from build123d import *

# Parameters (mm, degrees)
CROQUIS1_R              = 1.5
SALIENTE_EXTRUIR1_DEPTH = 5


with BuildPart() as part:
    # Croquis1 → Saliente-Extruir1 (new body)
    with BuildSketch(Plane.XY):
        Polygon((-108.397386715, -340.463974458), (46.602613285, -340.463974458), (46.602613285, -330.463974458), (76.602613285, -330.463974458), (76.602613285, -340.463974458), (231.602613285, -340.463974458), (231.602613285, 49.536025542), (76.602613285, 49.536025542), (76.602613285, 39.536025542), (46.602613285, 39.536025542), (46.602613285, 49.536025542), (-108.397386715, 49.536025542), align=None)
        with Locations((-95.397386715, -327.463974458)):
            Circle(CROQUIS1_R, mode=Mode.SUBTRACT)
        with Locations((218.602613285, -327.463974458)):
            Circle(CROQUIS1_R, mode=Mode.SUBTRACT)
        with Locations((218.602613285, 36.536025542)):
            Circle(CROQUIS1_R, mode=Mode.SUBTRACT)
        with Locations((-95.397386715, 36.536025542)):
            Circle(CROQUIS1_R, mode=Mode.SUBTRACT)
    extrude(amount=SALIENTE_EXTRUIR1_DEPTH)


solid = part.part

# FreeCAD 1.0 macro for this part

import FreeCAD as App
import Part
import Sketcher


def add_polygon(sketch, points):
    """Adds a closed chain of lines whose ends are joined by coincident constraints."""
    first, n = sketch.GeometryCount, len(points)
    for a, b in zip(points, points[1:] + points[:1]):
        sketch.addGeometry(Part.LineSegment(App.Vector(*a, 0), App.Vector(*b, 0)), False)
    for i in range(n):
        sketch.addConstraint(Sketcher.Constraint("Coincident", first + i, 2, first + (i + 1) % n, 1))

doc = App.newDocument("Part")
params = doc.addObject("Spreadsheet::Sheet", "Params")
for row, (alias, value) in enumerate([
    ("sketch1_diameter", "3 mm"),
    ("sketch1_width", "155 mm"),
    ("sketch1_width2", "30 mm"),
    ("sketch1_height", "10 mm"),
    ("sketch1_height2", "390 mm"),
    ("pad1_length", "5 mm"),
], start=1):
    params.set(f"A{row}", alias)
    params.set(f"B{row}", "=" + value)
    params.setAlias(f"B{row}", alias)

body = doc.addObject("PartDesign::Body", "Body")

# Sketch on XY plane
sketch1 = body.newObject("Sketcher::SketchObject", "Sketch")
sketch1.AttachmentSupport = (doc.getObject("XY_Plane"), [""])
sketch1.MapMode = "FlatFace"
add_polygon(sketch1, [(-108.397387, -340.463974), (46.602613, -340.463974), (46.602613, -330.463974), (76.602613, -330.463974), (76.602613, -340.463974), (231.602613, -340.463974), (231.602613, 49.536026), (76.602613, 49.536026), (76.602613, 39.536026), (46.602613, 39.536026), (46.602613, 49.536026), (-108.397387, 49.536026)])  # lines 0-11
sketch1.addGeometry(Part.Circle(App.Vector(-95.397387, -327.463974, 0), App.Vector(0, 0, 1), 1.5), False)  # 12
sketch1.addGeometry(Part.Circle(App.Vector(218.602613, -327.463974, 0), App.Vector(0, 0, 1), 1.5), False)  # 13
sketch1.addGeometry(Part.Circle(App.Vector(-95.397387, 36.536026, 0), App.Vector(0, 0, 1), 1.5), False)  # 14
sketch1.addGeometry(Part.Circle(App.Vector(218.602613, 36.536026, 0), App.Vector(0, 0, 1), 1.5), False)  # 15
sketch1.addConstraint([
    Sketcher.Constraint("Horizontal", 0),
    Sketcher.Constraint("Vertical", 1),
    Sketcher.Constraint("Horizontal", 2),
    Sketcher.Constraint("Vertical", 3),
    Sketcher.Constraint("Horizontal", 4),
    Sketcher.Constraint("Vertical", 5),
    Sketcher.Constraint("Horizontal", 6),
    Sketcher.Constraint("Vertical", 7),
    Sketcher.Constraint("Horizontal", 8),
    Sketcher.Constraint("Vertical", 9),
    Sketcher.Constraint("Horizontal", 10),
    Sketcher.Constraint("Vertical", 11),
    Sketcher.Constraint("Equal", 12, 13),
    Sketcher.Constraint("Equal", 13, 14),
    Sketcher.Constraint("Equal", 14, 15),
    Sketcher.Constraint("Horizontal", 12, 3, 13, 3),
    Sketcher.Constraint("Horizontal", 14, 3, 15, 3),
    Sketcher.Constraint("Horizontal", 0, 2, 3, 2),
    Sketcher.Constraint("Horizontal", 6, 2, 9, 2),
    Sketcher.Constraint("Vertical", 12, 3, 14, 3),
    Sketcher.Constraint("Vertical", 13, 3, 15, 3),
    Sketcher.Constraint("Vertical", 3, 2, 6, 2),
    Sketcher.Constraint("Vertical", 1, 2, 8, 2),
    Sketcher.Constraint("Equal", 0, 4),
    Sketcher.Constraint("Equal", 3, 7),
    Sketcher.Constraint("Diameter", 12, 3.0),
    Sketcher.Constraint("DistanceX", 0, 1, 0, 2, 155.0),
    Sketcher.Constraint("DistanceX", 2, 1, 2, 2, 30.0),
    Sketcher.Constraint("DistanceY", 1, 1, 1, 2, 10.0),
    Sketcher.Constraint("DistanceY", 5, 1, 5, 2, 390.0),
    Sketcher.Constraint("DistanceX", 12, 3, 13, 3, 314.0),
    Sketcher.Constraint("DistanceY", 12, 3, 14, 3, 364.0),
    Sketcher.Constraint("DistanceX", 12, 3, 0, 2, 142.0),
    Sketcher.Constraint("DistanceY", 0, 2, 12, 3, 13.0),
    Sketcher.Constraint("DistanceX", 12, 3, -1, 1, 95.397387),
    Sketcher.Constraint("DistanceY", 12, 3, -1, 1, 327.463974),
])
sketch1.setExpression("Constraints[37]", "Params.sketch1_diameter")
sketch1.setExpression("Constraints[38]", "Params.sketch1_width")
sketch1.setExpression("Constraints[39]", "Params.sketch1_width2")
sketch1.setExpression("Constraints[40]", "Params.sketch1_height")
sketch1.setExpression("Constraints[41]", "Params.sketch1_height2")
pad1 = body.newObject("PartDesign::Pad", "Pad")
pad1.Profile = sketch1
pad1.setExpression("Length", "Params.pad1_length")

doc.recompute()
